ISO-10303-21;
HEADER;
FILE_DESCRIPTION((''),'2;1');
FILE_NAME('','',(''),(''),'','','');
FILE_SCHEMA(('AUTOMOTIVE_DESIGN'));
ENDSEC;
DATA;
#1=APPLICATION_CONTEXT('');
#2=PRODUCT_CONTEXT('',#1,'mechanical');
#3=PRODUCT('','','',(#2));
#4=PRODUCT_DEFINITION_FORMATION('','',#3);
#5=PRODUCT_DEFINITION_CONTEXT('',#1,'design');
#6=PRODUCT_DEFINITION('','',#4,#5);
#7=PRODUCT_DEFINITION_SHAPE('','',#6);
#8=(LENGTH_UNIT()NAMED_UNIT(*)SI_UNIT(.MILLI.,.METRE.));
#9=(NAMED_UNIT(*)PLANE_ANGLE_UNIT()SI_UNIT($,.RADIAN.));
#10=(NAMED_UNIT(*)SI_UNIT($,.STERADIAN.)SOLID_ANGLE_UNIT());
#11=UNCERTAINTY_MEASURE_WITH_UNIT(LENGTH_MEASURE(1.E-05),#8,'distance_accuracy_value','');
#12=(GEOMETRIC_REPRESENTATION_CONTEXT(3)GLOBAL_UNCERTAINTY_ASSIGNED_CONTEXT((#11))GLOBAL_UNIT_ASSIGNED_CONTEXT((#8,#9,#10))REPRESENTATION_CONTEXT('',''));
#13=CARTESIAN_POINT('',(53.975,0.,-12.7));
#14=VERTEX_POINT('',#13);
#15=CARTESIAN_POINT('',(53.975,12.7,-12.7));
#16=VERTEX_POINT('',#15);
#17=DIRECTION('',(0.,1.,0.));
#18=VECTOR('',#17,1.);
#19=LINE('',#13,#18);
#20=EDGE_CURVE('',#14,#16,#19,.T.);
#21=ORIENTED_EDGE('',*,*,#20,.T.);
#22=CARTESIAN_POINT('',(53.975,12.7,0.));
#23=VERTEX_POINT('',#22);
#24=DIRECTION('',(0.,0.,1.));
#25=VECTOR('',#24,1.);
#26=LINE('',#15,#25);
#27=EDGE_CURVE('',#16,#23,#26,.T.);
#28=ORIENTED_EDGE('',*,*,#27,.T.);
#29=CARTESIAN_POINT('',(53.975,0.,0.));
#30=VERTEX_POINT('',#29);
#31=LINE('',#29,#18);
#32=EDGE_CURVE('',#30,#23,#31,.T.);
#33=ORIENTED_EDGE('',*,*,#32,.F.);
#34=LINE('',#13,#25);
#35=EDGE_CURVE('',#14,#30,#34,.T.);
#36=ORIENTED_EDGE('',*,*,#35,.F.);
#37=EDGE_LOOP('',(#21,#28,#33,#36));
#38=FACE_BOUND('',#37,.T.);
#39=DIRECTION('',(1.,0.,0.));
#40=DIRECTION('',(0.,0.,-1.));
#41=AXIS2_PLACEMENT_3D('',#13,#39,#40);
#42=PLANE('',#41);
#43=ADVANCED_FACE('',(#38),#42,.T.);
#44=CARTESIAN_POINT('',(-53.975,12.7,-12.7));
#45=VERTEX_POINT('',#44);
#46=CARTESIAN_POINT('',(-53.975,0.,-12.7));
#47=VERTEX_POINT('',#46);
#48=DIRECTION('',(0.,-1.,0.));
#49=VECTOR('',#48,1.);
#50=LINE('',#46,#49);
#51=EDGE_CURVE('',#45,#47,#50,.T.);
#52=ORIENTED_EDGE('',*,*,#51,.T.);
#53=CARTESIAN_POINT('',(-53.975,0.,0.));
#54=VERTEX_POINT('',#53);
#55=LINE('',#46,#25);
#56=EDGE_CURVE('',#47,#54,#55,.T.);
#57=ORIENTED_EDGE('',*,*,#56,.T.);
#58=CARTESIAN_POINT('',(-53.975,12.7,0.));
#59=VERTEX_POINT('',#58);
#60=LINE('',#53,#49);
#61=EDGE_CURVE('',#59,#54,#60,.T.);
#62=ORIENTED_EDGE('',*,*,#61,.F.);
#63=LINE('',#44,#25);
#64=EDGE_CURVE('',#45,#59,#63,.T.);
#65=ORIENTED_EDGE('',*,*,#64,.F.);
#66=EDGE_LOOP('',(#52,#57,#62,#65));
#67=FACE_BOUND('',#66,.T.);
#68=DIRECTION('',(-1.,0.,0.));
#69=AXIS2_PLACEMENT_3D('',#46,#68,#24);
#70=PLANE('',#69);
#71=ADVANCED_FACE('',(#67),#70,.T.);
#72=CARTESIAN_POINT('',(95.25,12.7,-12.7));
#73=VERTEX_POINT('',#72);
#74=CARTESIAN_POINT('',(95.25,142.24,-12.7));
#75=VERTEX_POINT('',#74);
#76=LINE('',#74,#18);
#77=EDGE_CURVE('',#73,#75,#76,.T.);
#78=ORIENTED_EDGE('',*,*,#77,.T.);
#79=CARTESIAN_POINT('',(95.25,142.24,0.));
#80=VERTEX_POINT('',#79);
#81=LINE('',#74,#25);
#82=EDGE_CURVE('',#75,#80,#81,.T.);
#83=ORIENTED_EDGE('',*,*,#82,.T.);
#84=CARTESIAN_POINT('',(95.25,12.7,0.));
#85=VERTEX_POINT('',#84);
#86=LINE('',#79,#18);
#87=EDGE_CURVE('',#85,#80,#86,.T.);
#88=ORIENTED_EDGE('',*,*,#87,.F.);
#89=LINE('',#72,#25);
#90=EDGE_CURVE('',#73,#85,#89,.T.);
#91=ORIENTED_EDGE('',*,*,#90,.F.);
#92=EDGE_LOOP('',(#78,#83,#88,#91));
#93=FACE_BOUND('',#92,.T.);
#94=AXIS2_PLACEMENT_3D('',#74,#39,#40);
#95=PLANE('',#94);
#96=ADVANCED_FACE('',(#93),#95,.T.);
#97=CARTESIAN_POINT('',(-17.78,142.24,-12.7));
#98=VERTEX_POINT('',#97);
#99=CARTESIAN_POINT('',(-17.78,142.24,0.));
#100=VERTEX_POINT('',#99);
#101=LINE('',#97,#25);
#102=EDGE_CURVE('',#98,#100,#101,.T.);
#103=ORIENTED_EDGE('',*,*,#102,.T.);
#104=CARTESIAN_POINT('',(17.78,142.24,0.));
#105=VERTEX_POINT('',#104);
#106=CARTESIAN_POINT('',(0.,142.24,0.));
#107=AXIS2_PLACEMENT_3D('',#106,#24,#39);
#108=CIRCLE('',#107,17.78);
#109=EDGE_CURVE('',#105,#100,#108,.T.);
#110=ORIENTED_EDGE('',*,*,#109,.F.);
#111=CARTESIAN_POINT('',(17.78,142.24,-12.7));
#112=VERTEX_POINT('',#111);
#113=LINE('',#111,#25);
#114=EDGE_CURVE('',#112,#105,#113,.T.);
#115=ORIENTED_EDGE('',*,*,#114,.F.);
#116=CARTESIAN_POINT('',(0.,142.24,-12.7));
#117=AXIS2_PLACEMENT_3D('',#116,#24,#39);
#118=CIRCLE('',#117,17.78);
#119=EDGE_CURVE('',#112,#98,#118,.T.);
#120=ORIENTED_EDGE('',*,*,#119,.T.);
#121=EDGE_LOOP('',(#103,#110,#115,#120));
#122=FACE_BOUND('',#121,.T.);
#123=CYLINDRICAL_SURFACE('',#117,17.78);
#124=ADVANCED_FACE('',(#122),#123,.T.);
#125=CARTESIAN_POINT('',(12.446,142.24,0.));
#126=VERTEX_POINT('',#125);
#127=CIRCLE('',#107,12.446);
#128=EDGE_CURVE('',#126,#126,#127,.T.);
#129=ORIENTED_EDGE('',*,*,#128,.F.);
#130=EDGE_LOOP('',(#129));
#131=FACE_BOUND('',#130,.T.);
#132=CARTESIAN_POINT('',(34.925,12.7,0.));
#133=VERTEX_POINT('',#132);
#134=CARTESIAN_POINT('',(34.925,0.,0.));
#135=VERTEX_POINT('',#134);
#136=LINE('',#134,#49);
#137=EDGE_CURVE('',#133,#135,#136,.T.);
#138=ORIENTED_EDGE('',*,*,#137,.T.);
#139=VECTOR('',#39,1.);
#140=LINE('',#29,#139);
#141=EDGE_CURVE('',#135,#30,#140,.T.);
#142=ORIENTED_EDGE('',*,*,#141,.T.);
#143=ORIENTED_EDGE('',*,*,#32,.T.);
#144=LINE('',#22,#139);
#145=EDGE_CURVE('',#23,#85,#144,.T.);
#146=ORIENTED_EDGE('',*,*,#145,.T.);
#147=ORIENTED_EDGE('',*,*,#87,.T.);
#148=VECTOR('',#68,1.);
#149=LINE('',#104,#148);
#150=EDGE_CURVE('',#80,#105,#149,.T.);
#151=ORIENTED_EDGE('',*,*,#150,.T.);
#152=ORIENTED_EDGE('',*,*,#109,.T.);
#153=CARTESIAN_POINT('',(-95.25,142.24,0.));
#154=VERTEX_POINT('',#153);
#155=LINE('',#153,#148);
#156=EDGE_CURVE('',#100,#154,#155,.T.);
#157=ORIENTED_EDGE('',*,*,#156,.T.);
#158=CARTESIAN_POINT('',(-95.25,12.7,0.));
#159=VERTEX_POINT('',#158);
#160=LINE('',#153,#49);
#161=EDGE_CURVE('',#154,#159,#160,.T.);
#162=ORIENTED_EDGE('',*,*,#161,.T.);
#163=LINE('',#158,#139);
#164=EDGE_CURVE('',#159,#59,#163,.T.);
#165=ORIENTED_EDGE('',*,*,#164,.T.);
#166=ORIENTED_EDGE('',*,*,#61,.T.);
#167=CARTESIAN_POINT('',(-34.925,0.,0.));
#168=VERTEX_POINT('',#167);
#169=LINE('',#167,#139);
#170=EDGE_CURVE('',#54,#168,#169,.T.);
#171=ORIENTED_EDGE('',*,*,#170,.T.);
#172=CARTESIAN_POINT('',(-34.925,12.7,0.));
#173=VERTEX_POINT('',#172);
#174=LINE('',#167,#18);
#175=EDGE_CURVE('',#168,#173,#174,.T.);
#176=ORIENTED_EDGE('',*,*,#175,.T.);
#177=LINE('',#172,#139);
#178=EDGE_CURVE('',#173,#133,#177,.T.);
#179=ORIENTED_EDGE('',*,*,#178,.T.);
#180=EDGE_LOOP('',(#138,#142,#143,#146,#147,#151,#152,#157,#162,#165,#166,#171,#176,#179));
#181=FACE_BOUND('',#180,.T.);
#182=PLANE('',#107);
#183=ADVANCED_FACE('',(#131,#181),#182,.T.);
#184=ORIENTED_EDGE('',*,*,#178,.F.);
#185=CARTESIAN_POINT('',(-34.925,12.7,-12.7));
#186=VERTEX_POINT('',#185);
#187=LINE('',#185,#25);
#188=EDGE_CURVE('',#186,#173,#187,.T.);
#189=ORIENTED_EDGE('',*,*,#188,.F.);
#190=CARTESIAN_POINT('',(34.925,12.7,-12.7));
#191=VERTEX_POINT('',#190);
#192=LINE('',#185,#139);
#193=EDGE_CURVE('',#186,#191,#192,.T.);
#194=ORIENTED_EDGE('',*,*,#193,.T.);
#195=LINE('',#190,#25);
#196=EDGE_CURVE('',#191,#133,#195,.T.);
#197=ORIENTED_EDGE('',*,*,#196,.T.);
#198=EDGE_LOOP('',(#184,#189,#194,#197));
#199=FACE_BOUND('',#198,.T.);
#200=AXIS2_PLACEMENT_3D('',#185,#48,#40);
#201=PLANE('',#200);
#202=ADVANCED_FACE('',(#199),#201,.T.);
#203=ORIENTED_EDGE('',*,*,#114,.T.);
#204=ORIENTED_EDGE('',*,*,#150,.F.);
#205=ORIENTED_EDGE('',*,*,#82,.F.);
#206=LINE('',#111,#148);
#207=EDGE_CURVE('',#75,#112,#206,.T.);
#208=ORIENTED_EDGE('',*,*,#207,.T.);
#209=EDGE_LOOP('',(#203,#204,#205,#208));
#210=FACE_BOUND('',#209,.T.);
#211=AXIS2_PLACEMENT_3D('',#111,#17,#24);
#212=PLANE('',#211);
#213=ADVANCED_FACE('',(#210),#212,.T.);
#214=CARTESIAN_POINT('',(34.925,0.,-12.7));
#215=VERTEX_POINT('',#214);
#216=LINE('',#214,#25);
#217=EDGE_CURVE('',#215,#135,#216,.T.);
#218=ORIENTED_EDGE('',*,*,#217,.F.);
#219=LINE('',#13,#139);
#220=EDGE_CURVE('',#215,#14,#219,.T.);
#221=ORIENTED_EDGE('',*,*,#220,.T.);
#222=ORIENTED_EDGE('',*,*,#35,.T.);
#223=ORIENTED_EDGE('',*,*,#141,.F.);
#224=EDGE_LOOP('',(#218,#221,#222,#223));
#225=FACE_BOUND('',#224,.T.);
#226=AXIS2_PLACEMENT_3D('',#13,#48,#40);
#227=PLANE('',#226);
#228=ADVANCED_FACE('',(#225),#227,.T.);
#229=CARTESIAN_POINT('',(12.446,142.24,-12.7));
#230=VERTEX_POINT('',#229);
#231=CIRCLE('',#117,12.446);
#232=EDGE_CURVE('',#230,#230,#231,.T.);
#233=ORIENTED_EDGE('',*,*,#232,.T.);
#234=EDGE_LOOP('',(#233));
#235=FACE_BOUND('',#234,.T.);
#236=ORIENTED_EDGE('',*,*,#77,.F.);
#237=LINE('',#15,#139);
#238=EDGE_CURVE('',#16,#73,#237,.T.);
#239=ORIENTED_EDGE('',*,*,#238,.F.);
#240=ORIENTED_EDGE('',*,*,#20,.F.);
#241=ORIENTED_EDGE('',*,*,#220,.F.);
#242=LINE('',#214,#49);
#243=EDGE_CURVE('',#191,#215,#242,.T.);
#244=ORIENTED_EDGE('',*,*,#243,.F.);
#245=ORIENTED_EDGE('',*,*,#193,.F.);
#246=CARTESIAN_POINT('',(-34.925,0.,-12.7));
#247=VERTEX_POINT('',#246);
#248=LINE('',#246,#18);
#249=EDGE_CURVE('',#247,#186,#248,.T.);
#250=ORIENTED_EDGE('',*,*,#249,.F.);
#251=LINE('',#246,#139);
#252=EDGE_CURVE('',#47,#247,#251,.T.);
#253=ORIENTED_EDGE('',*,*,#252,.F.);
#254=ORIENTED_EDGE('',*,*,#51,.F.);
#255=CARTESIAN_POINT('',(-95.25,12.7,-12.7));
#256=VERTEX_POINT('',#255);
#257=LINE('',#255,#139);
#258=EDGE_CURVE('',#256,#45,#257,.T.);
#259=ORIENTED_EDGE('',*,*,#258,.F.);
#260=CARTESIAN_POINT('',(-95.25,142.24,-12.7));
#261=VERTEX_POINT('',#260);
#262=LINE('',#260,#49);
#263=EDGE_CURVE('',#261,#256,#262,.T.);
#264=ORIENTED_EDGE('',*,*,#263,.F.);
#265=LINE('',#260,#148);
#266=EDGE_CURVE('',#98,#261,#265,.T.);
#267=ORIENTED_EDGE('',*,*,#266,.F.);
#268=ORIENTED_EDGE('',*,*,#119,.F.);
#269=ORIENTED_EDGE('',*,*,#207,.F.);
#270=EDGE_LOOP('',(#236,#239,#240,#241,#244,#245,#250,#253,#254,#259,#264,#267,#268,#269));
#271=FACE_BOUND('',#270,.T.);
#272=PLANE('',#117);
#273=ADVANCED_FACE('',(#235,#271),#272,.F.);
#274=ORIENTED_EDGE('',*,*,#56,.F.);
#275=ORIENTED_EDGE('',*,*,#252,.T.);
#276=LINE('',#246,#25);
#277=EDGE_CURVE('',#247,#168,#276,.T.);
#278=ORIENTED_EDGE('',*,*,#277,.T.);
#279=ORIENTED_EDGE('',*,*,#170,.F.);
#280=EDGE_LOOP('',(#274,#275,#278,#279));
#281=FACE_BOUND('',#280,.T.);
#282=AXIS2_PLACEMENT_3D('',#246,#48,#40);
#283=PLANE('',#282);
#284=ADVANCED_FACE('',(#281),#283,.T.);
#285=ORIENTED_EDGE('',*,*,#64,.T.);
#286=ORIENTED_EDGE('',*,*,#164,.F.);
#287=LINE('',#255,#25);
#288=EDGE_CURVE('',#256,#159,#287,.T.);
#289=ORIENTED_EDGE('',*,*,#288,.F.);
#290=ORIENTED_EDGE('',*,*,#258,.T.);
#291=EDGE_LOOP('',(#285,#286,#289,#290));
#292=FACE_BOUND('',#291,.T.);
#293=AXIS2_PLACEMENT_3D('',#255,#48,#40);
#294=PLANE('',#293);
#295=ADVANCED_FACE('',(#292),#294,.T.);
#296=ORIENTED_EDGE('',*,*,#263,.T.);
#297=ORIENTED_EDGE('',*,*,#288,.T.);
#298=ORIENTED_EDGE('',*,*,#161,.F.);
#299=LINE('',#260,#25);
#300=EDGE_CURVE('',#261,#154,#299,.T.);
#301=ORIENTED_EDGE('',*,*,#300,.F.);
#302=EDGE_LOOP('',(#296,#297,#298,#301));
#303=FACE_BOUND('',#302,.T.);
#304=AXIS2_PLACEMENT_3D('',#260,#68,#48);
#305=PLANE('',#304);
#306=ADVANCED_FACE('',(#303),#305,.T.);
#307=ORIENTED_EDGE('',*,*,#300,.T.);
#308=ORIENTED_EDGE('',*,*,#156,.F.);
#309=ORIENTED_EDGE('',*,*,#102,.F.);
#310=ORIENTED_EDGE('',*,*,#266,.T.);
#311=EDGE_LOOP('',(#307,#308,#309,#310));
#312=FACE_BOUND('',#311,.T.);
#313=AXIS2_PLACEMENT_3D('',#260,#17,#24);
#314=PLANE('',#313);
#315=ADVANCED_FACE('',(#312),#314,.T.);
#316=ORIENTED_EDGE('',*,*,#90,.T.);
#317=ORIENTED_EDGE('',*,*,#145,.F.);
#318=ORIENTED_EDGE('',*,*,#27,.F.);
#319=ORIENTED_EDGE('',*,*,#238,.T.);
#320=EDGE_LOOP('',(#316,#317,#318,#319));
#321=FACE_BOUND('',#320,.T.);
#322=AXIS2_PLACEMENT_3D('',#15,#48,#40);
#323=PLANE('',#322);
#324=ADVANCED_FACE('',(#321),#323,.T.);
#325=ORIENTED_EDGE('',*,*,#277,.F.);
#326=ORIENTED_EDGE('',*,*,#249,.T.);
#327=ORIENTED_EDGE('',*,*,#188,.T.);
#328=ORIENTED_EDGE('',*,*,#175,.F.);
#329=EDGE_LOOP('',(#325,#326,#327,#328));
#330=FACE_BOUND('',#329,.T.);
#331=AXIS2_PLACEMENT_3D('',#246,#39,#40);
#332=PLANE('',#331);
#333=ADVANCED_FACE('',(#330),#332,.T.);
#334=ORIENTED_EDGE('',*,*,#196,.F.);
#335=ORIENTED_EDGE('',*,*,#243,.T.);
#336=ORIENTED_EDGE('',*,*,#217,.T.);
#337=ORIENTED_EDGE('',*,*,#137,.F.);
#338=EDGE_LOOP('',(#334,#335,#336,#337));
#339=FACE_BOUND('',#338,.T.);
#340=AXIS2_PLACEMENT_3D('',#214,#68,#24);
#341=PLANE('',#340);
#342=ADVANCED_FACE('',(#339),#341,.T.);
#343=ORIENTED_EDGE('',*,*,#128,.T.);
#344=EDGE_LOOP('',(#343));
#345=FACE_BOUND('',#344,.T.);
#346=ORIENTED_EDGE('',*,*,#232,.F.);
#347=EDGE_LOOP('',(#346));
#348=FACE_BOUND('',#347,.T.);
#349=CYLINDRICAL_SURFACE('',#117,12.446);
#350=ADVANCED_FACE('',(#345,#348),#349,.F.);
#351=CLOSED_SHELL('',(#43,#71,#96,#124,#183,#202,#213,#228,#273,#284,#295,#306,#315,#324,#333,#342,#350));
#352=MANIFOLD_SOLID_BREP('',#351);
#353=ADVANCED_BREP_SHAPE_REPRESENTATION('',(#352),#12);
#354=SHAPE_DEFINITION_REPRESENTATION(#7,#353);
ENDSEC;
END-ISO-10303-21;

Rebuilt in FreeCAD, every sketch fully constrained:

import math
import FreeCAD as App
import Part
import Sketcher

V = App.Vector
Q = App.Units.Quantity

doc = App.newDocument("Part")
body = doc.addObject("PartDesign::Body", "Body")

sketch1 = body.newObject("Sketcher::SketchObject", "Sketch")
sketch1.AttachmentSupport = (doc.getObject("XY_Plane"), [""])
sketch1.MapMode = "FlatFace"
sketch1.addGeometry([
    Part.LineSegment(V(-18, 142, 0), V(-95, 142, 0)),
    Part.LineSegment(V(-95, 142, 0), V(-95, 13, 0)),
    Part.LineSegment(V(-95, 13, 0), V(-54, 13, 0)),
    Part.LineSegment(V(-54, 13, 0), V(-54, 0, 0)),
    Part.LineSegment(V(-54, 0, 0), V(-35, 0, 0)),
    Part.LineSegment(V(-35, 0, 0), V(-35, 13, 0)),
    Part.LineSegment(V(-35, 13, 0), V(35, 13, 0)),
    Part.LineSegment(V(35, 13, 0), V(35, 0, 0)),
    Part.LineSegment(V(35, 0, 0), V(54, 0, 0)),
    Part.LineSegment(V(54, 0, 0), V(54, 13, 0)),
    Part.LineSegment(V(54, 13, 0), V(95, 13, 0)),
    Part.LineSegment(V(95, 13, 0), V(95, 142, 0)),
    Part.LineSegment(V(95, 142, 0), V(18, 142, 0)),
    Part.ArcOfCircle(Part.Circle(V(0, 142, 0), V(0, 0, 1), 18), math.radians(0), math.radians(180)),
    Part.Circle(V(0, 142, 0), V(0, 0, 1), 12),
], False)
sketch1.addConstraint([
    Sketcher.Constraint("Coincident", 0, 2, 1, 1),
    Sketcher.Constraint("Coincident", 1, 2, 2, 1),
    Sketcher.Constraint("Coincident", 2, 2, 3, 1),
    Sketcher.Constraint("Coincident", 3, 2, 4, 1),
    Sketcher.Constraint("Coincident", 4, 2, 5, 1),
    Sketcher.Constraint("Coincident", 5, 2, 6, 1),
    Sketcher.Constraint("Coincident", 6, 2, 7, 1),
    Sketcher.Constraint("Coincident", 7, 2, 8, 1),
    Sketcher.Constraint("Coincident", 8, 2, 9, 1),
    Sketcher.Constraint("Coincident", 9, 2, 10, 1),
    Sketcher.Constraint("Coincident", 10, 2, 11, 1),
    Sketcher.Constraint("Coincident", 11, 2, 12, 1),
    Sketcher.Constraint("Coincident", 12, 2, 13, 1),
    Sketcher.Constraint("Coincident", 13, 2, 0, 1),
    Sketcher.Constraint("Horizontal", 0),
    Sketcher.Constraint("Vertical", 1),
    Sketcher.Constraint("Horizontal", 2),
    Sketcher.Constraint("Vertical", 3),
    Sketcher.Constraint("Horizontal", 4),
    Sketcher.Constraint("Vertical", 5),
    Sketcher.Constraint("Horizontal", 6),
    Sketcher.Constraint("Vertical", 7),
    Sketcher.Constraint("Horizontal", 8),
    Sketcher.Constraint("Vertical", 9),
    Sketcher.Constraint("Horizontal", 10),
    Sketcher.Constraint("Vertical", 11),
    Sketcher.Constraint("Horizontal", 12),
    Sketcher.Constraint("Coincident", 14, 3, 13, 3),
    Sketcher.Constraint("Symmetric", 4, 2, 7, 2, -1, 1),
    Sketcher.Constraint("Symmetric", 3, 2, 8, 2, -2),
    Sketcher.Constraint("Symmetric", 1, 2, 10, 2, -2),
    Sketcher.Constraint("Symmetric", 12, 2, 13, 2, -2),
    Sketcher.Constraint("Horizontal", 14, 3, 0, 2),
    Sketcher.Constraint("Horizontal", 2, 2, 5, 2),
    Sketcher.Constraint("Radius", 13, Q("0.7 in")),
    Sketcher.Constraint("Diameter", 14, Q("0.98 in")),
    Sketcher.Constraint("DistanceY", 1, 2, 1, 1, Q("5.1 in")),
    Sketcher.Constraint("DistanceY", 3, 2, 3, 1, Q("0.5 in")),
    Sketcher.Constraint("DistanceX", 0, 2, 0, 1, Q("3.05 in")),
    Sketcher.Constraint("DistanceX", 4, 1, 4, 2, Q("0.75 in")),
    Sketcher.Constraint("DistanceX", 6, 1, 6, 2, Q("2.75 in")),
])
pad1 = body.newObject("PartDesign::Pad", "Pad")
pad1.Profile = sketch1
pad1.Length = Q("0.5 in")
pad1.Reversed = True

doc.recompute()
